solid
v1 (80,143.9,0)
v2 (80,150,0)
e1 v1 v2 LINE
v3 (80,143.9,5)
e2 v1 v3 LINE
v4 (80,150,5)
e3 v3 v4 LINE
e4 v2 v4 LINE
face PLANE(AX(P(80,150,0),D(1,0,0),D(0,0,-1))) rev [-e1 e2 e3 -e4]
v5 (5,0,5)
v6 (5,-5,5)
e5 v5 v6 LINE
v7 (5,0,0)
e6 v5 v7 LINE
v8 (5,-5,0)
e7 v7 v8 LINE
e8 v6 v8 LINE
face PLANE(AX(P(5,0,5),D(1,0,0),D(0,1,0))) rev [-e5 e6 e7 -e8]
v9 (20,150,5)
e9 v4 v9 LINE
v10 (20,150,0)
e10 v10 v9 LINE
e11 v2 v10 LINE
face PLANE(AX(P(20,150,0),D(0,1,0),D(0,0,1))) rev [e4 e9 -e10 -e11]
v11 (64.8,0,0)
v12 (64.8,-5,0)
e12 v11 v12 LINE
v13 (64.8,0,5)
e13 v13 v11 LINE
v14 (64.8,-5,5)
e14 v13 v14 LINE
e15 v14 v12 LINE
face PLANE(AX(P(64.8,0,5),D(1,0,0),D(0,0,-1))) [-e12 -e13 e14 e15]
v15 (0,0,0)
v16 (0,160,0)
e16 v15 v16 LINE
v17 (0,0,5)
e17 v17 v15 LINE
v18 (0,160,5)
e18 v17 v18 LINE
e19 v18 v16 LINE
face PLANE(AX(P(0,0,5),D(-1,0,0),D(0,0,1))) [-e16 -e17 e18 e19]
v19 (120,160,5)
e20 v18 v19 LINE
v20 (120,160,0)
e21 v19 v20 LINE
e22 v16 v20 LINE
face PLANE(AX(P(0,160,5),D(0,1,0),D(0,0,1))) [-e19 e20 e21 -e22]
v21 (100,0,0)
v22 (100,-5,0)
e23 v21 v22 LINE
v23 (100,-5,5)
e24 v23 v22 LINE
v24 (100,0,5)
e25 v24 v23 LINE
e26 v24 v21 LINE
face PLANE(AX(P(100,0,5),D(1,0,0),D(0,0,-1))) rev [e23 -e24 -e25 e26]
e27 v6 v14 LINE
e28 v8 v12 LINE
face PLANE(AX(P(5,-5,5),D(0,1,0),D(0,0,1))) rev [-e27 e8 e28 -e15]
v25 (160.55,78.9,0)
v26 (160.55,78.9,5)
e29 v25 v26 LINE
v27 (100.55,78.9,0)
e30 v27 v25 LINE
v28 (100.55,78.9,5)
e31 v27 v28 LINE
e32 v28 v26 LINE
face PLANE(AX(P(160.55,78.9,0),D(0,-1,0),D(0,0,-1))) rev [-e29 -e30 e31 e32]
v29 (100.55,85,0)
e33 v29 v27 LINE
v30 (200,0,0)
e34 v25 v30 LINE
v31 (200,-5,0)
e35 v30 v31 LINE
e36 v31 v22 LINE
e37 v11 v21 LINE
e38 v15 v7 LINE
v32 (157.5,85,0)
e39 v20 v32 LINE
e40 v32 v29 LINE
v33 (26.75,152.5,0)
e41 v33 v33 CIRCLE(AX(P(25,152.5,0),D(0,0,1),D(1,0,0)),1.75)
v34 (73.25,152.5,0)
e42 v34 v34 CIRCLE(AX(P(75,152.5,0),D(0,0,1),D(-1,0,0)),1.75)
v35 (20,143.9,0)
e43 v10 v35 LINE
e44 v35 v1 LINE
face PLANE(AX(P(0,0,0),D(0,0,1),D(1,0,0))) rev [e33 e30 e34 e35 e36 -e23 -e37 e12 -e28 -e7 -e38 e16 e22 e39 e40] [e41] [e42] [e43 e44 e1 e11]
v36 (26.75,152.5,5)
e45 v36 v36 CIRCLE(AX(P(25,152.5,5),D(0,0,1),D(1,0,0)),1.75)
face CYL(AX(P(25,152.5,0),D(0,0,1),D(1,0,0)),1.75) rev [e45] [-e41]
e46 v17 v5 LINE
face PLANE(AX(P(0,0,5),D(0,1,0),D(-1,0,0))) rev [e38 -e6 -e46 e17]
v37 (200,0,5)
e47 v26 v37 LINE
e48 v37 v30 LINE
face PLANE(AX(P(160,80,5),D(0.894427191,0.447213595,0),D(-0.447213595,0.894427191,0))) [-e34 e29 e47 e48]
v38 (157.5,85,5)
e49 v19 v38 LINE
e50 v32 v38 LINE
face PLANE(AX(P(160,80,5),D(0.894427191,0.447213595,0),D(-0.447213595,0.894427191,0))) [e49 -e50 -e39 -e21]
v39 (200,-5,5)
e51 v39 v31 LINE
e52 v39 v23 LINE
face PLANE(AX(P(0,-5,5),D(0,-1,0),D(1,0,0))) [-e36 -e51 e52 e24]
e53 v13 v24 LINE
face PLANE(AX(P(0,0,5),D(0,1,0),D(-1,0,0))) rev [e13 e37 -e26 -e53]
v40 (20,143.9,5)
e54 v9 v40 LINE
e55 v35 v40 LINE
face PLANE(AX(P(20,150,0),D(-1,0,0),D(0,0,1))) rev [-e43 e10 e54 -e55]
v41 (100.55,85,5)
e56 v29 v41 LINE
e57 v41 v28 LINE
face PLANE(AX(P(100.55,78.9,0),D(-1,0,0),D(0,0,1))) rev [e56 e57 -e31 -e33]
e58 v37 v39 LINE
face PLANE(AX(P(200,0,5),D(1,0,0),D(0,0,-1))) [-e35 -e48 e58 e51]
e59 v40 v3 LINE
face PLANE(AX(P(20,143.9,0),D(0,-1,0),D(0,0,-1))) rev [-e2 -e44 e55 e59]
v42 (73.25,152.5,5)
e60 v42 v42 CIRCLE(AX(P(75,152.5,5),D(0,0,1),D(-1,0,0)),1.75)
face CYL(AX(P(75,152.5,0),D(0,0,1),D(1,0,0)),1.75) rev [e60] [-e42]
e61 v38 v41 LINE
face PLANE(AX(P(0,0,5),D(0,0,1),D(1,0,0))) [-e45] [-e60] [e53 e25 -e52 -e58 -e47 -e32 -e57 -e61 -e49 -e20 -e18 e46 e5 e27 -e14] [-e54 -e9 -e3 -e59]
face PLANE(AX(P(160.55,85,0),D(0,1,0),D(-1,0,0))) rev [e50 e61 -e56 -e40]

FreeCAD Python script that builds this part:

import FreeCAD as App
import Part
import Sketcher

V = App.Vector


def add_polygon(sketch, points):
    """Adds a closed chain of lines whose ends are joined by coincident constraints."""
    first, n = sketch.GeometryCount, len(points)
    for a, b in zip(points, points[1:] + points[:1]):
        sketch.addGeometry(Part.LineSegment(App.Vector(*a, 0), App.Vector(*b, 0)), False)
    for i in range(n):
        sketch.addConstraint(Sketcher.Constraint("Coincident", first + i, 2, first + (i + 1) % n, 1))

doc = App.newDocument("Part")
params = doc.addObject("Spreadsheet::Sheet", "Params")
for row, (alias, value) in enumerate([
    ("sketch1_width", "120 mm"),
    ("sketch1_width2", "5 mm"),
    ("sketch1_width3", "100 mm"),
    ("sketch1_height", "160 mm"),
    ("sketch1_width4", "59.8 mm"),
    ("pad1_length", "5 mm"),
    ("sketch2_width", "60 mm"),
    ("sketch2_height", "6.1 mm"),
    ("pocket1_length", "5 mm"),
    ("sketch3_diameter", "3.5 mm"),
    ("pocket2_length", "5 mm"),
    ("sketch4_width", "60 mm"),
    ("sketch4_height", "6.1 mm"),
    ("pocket3_length", "5 mm"),
], start=1):
    params.set(f"A{row}", alias)
    params.set(f"B{row}", "=" + value)
    params.setAlias(f"B{row}", alias)

body = doc.addObject("PartDesign::Body", "Body")

# Sketch on XY plane
sketch1 = body.newObject("Sketcher::SketchObject", "Sketch")
sketch1.AttachmentSupport = (doc.getObject("XY_Plane"), [""])
sketch1.MapMode = "FlatFace"
add_polygon(sketch1, [(200, 0), (120, 160), (0, 160), (0, 0), (5, 0), (5, -5), (65, -5), (65, 0), (100, 0), (100, -5), (200, -5)])  # lines 0-10
sketch1.addConstraint([
    Sketcher.Constraint("Horizontal", 1),
    Sketcher.Constraint("Vertical", 2),
    Sketcher.Constraint("Horizontal", 3),
    Sketcher.Constraint("Vertical", 4),
    Sketcher.Constraint("Horizontal", 5),
    Sketcher.Constraint("Vertical", 6),
    Sketcher.Constraint("Horizontal", 7),
    Sketcher.Constraint("Vertical", 8),
    Sketcher.Constraint("Horizontal", 9),
    Sketcher.Constraint("Vertical", 10),
    Sketcher.Constraint("Coincident", 2, 2, -1, 1),
    Sketcher.Constraint("PointOnObject", 6, 2, -1),
    Sketcher.Constraint("PointOnObject", 10, 2, -1),
    Sketcher.Constraint("Horizontal", 5, 2, 8, 2),
    Sketcher.Constraint("Equal", 3, 4),
    Sketcher.Constraint("DistanceX", 1, 2, 1, 1, 120.0),
    Sketcher.Constraint("DistanceX", 3, 1, 3, 2, 5.0),
    Sketcher.Constraint("DistanceX", 9, 1, 9, 2, 100.0),
    Sketcher.Constraint("DistanceY", 2, 2, 2, 1, 160.0),
    Sketcher.Constraint("DistanceX", 5, 1, 5, 2, 59.8),
    Sketcher.Constraint("DistanceX", 7, 1, 7, 2, 35.2),
])
sketch1.setExpression("Constraints[26]", "Params.sketch1_width")
sketch1.setExpression("Constraints[27]", "Params.sketch1_width2")
sketch1.setExpression("Constraints[28]", "Params.sketch1_width3")
sketch1.setExpression("Constraints[29]", "Params.sketch1_height")
sketch1.setExpression("Constraints[30]", "Params.sketch1_width4")
pad1 = body.newObject("PartDesign::Pad", "Pad")
pad1.Profile = sketch1
pad1.setExpression("Length", "Params.pad1_length")

# Sketch on XY plane
sketch2 = body.newObject("Sketcher::SketchObject", "Sketch001")
sketch2.AttachmentSupport = (doc.getObject("XY_Plane"), [""])
sketch2.MapMode = "FlatFace"
sketch2.AttachmentOffset = App.Placement(V(0, 0, 5), App.Rotation())
add_polygon(sketch2, [(20, 150), (20, 144), (80, 144), (80, 150)])  # lines 0-3
sketch2.addConstraint([
    Sketcher.Constraint("Vertical", 0),
    Sketcher.Constraint("Horizontal", 1),
    Sketcher.Constraint("Vertical", 2),
    Sketcher.Constraint("Horizontal", 3),
    Sketcher.Constraint("DistanceX", 1, 1, 1, 2, 60.0),
    Sketcher.Constraint("DistanceY", 0, 2, 0, 1, 6.1),
    Sketcher.Constraint("DistanceX", -1, 1, 0, 2, 20.0),
    Sketcher.Constraint("DistanceY", -1, 1, 2, 2, 150.0),
])
sketch2.setExpression("Constraints[8]", "Params.sketch2_width")
sketch2.setExpression("Constraints[9]", "Params.sketch2_height")
pocket1 = body.newObject("PartDesign::Pocket", "Pocket")
pocket1.Profile = sketch2
pocket1.setExpression("Length", "Params.pocket1_length")

# Sketch on XY plane
sketch3 = body.newObject("Sketcher::SketchObject", "Sketch002")
sketch3.AttachmentSupport = (doc.getObject("XY_Plane"), [""])
sketch3.MapMode = "FlatFace"
sketch3.AttachmentOffset = App.Placement(V(0, 0, 5), App.Rotation())
sketch3.addGeometry([
    Part.Circle(V(25, 152.5, 0), V(0, 0, 1), 1.8),
    Part.Circle(V(75, 152.5, 0), V(0, 0, 1), 1.8),
], False)
sketch3.addConstraint([
    Sketcher.Constraint("Equal", 0, 1),
    Sketcher.Constraint("Horizontal", 0, 3, 1, 3),
    Sketcher.Constraint("Diameter", 0, 3.5),
    Sketcher.Constraint("DistanceX", -1, 1, 0, 3, 25.0),
    Sketcher.Constraint("DistanceX", -1, 1, 1, 3, 75.0),
    Sketcher.Constraint("DistanceY", -1, 1, 0, 3, 152.5),
])
sketch3.setExpression("Constraints[2]", "Params.sketch3_diameter")
pocket2 = body.newObject("PartDesign::Pocket", "Pocket001")
pocket2.Profile = sketch3
pocket2.setExpression("Length", "Params.pocket2_length")

# Sketch on XY plane
sketch4 = body.newObject("Sketcher::SketchObject", "Sketch003")
sketch4.AttachmentSupport = (doc.getObject("XY_Plane"), [""])
sketch4.MapMode = "FlatFace"
sketch4.AttachmentOffset = App.Placement(V(0, 0, 5), App.Rotation())
add_polygon(sketch4, [(101, 85), (101, 79), (161, 79), (161, 85)])  # lines 0-3
sketch4.addConstraint([
    Sketcher.Constraint("Vertical", 0),
    Sketcher.Constraint("Horizontal", 1),
    Sketcher.Constraint("Vertical", 2),
    Sketcher.Constraint("Horizontal", 3),
    Sketcher.Constraint("DistanceX", 1, 1, 1, 2, 60.0),
    Sketcher.Constraint("DistanceY", 0, 2, 0, 1, 6.1),
    Sketcher.Constraint("DistanceY", -1, 1, 2, 2, 85.0),
    Sketcher.Constraint("DistanceX", -1, 1, 0, 2, 100.55),
])
sketch4.setExpression("Constraints[8]", "Params.sketch4_width")
sketch4.setExpression("Constraints[9]", "Params.sketch4_height")
pocket3 = body.newObject("PartDesign::Pocket", "Pocket002")
pocket3.Profile = sketch4
pocket3.setExpression("Length", "Params.pocket3_length")

doc.recompute()
